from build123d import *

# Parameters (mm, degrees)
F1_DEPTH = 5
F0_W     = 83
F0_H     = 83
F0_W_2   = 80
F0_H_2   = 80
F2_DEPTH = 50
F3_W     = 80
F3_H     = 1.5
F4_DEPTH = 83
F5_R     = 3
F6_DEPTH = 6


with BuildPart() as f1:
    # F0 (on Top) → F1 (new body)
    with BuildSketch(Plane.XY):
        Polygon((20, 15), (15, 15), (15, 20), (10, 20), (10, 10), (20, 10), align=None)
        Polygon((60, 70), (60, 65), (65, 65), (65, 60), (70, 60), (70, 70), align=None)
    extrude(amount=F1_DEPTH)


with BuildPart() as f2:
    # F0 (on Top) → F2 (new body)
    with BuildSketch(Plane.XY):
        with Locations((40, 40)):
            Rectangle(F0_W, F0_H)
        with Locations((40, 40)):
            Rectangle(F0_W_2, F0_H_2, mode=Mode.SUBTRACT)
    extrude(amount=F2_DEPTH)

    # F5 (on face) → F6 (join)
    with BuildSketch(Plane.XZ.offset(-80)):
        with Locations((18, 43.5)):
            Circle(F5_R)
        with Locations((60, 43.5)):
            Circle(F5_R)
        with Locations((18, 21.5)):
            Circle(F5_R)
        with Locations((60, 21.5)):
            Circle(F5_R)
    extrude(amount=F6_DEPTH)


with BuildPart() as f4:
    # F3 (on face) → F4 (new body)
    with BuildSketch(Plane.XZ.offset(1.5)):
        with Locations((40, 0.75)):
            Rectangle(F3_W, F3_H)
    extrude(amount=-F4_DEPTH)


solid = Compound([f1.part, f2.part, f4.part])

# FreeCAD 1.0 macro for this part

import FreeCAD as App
import Part
import Sketcher

V = App.Vector
Q = App.Units.Quantity


def add_polygon(sketch, points):
    """Adds a closed chain of lines whose ends are joined by coincident constraints."""
    first, n = sketch.GeometryCount, len(points)
    for a, b in zip(points, points[1:] + points[:1]):
        sketch.addGeometry(Part.LineSegment(App.Vector(*a, 0), App.Vector(*b, 0)), False)
    for i in range(n):
        sketch.addConstraint(Sketcher.Constraint("Coincident", first + i, 2, first + (i + 1) % n, 1))

doc = App.newDocument("Part")
body = doc.addObject("PartDesign::Body", "Body")
body.AllowCompound = True

# Sketch on XY plane
sketch1 = body.newObject("Sketcher::SketchObject", "Sketch")
sketch1.AttachmentSupport = (doc.getObject("XY_Plane"), [""])
sketch1.MapMode = "FlatFace"
add_polygon(sketch1, [(20, 15), (15, 15), (15, 20), (10, 20), (10, 10), (20, 10)])  # lines 0-5
add_polygon(sketch1, [(60, 70), (60, 65), (65, 65), (65, 60), (70, 60), (70, 70)])  # lines 6-11
sketch1.addConstraint(Sketcher.Constraint("Horizontal", 0))
sketch1.addConstraint(Sketcher.Constraint("Vertical", 1))
sketch1.addConstraint(Sketcher.Constraint("Horizontal", 2))
sketch1.addConstraint(Sketcher.Constraint("Vertical", 3))
sketch1.addConstraint(Sketcher.Constraint("Horizontal", 4))
sketch1.addConstraint(Sketcher.Constraint("Vertical", 5))
sketch1.addConstraint(Sketcher.Constraint("Vertical", 6))
sketch1.addConstraint(Sketcher.Constraint("Horizontal", 7))
sketch1.addConstraint(Sketcher.Constraint("Vertical", 8))
sketch1.addConstraint(Sketcher.Constraint("Horizontal", 9))
sketch1.addConstraint(Sketcher.Constraint("Vertical", 10))
sketch1.addConstraint(Sketcher.Constraint("Horizontal", 11))
sketch1.addConstraint(Sketcher.Constraint("Equal", 0, 2))
sketch1.addConstraint(Sketcher.Constraint("Equal", 2, 7))
sketch1.addConstraint(Sketcher.Constraint("Equal", 7, 9))
sketch1.addConstraint(Sketcher.Constraint("Equal", 9, 1))
sketch1.addConstraint(Sketcher.Constraint("Equal", 11, 3))
sketch1.addConstraint(Sketcher.Constraint("Equal", 5, 6))
sketch1.addConstraint(Sketcher.Constraint("Equal", 6, 8))
sketch1.addConstraint(Sketcher.Constraint("DistanceX", 0, 2, 0, 1, Q("5 mm")))
sketch1.addConstraint(Sketcher.Constraint("DistanceX", -1, 1, 0, 2, Q("15 mm")))
sketch1.addConstraint(Sketcher.Constraint("DistanceY", -1, 1, 0, 2, Q("15 mm")))
sketch1.addConstraint(Sketcher.Constraint("DistanceX", -1, 1, 6, 2, Q("60 mm")))
sketch1.addConstraint(Sketcher.Constraint("DistanceY", -1, 1, 6, 2, Q("65 mm")))
pad1 = body.newObject("PartDesign::Pad", "Pad")
pad1.Profile = sketch1
pad1.Length = 5
body2 = doc.addObject("PartDesign::Body", "Body001")

# Sketch on XY plane
sketch2 = body2.newObject("Sketcher::SketchObject", "Sketch001")
sketch2.AttachmentSupport = (doc.getObject("XY_Plane001"), [""])
sketch2.MapMode = "FlatFace"
add_polygon(sketch2, [(-2, 82), (-2, -2), (82, -2), (82, 82)])  # lines 0-3
add_polygon(sketch2, [(80, 0), (0, 0), (0, 80), (80, 80)])  # lines 4-7
sketch2.addConstraint(Sketcher.Constraint("Vertical", 0))
sketch2.addConstraint(Sketcher.Constraint("Horizontal", 1))
sketch2.addConstraint(Sketcher.Constraint("Vertical", 2))
sketch2.addConstraint(Sketcher.Constraint("Horizontal", 3))
sketch2.addConstraint(Sketcher.Constraint("Horizontal", 4))
sketch2.addConstraint(Sketcher.Constraint("Vertical", 5))
sketch2.addConstraint(Sketcher.Constraint("Horizontal", 6))
sketch2.addConstraint(Sketcher.Constraint("Vertical", 7))
sketch2.addConstraint(Sketcher.Constraint("Coincident", 4, 2, -1, 1))
sketch2.addConstraint(Sketcher.Constraint("Equal", 3, 0))
sketch2.addConstraint(Sketcher.Constraint("Equal", 6, 5))
sketch2.addConstraint(Sketcher.Constraint("DistanceX", 1, 1, 1, 2, Q("83 mm")))
sketch2.addConstraint(Sketcher.Constraint("DistanceX", 4, 2, 4, 1, Q("80 mm")))
sketch2.addConstraint(Sketcher.Constraint("DistanceX", 0, 2, -1, 1, Q("1.5 mm")))
sketch2.addConstraint(Sketcher.Constraint("DistanceY", 0, 2, -1, 1, Q("1.5 mm")))
pad2 = body2.newObject("PartDesign::Pad", "Pad001")
pad2.Profile = sketch2
pad2.Length = 50

# Sketch on XZ plane
sketch3 = body2.newObject("Sketcher::SketchObject", "Sketch002")
sketch3.AttachmentSupport = (doc.getObject("XZ_Plane001"), [""])
sketch3.MapMode = "FlatFace"
sketch3.AttachmentOffset = App.Placement(V(0, 0, -80), App.Rotation())
sketch3.addGeometry(Part.Circle(V(18, 43.5, 0), V(0, 0, 1), 3), False)
sketch3.addGeometry(Part.Circle(V(60, 43.5, 0), V(0, 0, 1), 3), False)
sketch3.addGeometry(Part.Circle(V(18, 21.5, 0), V(0, 0, 1), 3), False)
sketch3.addGeometry(Part.Circle(V(60, 21.5, 0), V(0, 0, 1), 3), False)
sketch3.addConstraint(Sketcher.Constraint("Equal", 0, 1))
sketch3.addConstraint(Sketcher.Constraint("Equal", 1, 2))
sketch3.addConstraint(Sketcher.Constraint("Equal", 2, 3))
sketch3.addConstraint(Sketcher.Constraint("Horizontal", 0, 3, 1, 3))
sketch3.addConstraint(Sketcher.Constraint("Horizontal", 2, 3, 3, 3))
sketch3.addConstraint(Sketcher.Constraint("Vertical", 0, 3, 2, 3))
sketch3.addConstraint(Sketcher.Constraint("Vertical", 1, 3, 3, 3))
sketch3.addConstraint(Sketcher.Constraint("Diameter", 0, Q("6 mm")))
sketch3.addConstraint(Sketcher.Constraint("DistanceX", -1, 1, 0, 3, Q("18 mm")))
sketch3.addConstraint(Sketcher.Constraint("DistanceX", -1, 1, 1, 3, Q("60 mm")))
sketch3.addConstraint(Sketcher.Constraint("DistanceY", 2, 3, 0, 3, Q("22 mm")))
sketch3.addConstraint(Sketcher.Constraint("DistanceY", -1, 1, 0, 3, Q("43.5 mm")))
pad3 = body2.newObject("PartDesign::Pad", "Pad002")
pad3.Profile = sketch3
pad3.Length = 6
body3 = doc.addObject("PartDesign::Body", "Body002")

# Sketch on XZ plane
sketch4 = body3.newObject("Sketcher::SketchObject", "Sketch003")
sketch4.AttachmentSupport = (doc.getObject("XZ_Plane002"), [""])
sketch4.MapMode = "FlatFace"
sketch4.AttachmentOffset = App.Placement(V(0, 0, 1.5), App.Rotation())
add_polygon(sketch4, [(0, 1.5), (0, 0), (80, 0), (80, 1.5)])  # lines 0-3
sketch4.addConstraint(Sketcher.Constraint("Vertical", 0))
sketch4.addConstraint(Sketcher.Constraint("Horizontal", 1))
sketch4.addConstraint(Sketcher.Constraint("Vertical", 2))
sketch4.addConstraint(Sketcher.Constraint("Horizontal", 3))
sketch4.addConstraint(Sketcher.Constraint("Coincident", 0, 2, -1, 1))
sketch4.addConstraint(Sketcher.Constraint("DistanceX", 1, 1, 1, 2, Q("80 mm")))
sketch4.addConstraint(Sketcher.Constraint("DistanceY", 0, 2, 0, 1, Q("1.5 mm")))
pad4 = body3.newObject("PartDesign::Pad", "Pad003")
pad4.Profile = sketch4
pad4.Length = 83
pad4.Reversed = True

doc.recompute()
